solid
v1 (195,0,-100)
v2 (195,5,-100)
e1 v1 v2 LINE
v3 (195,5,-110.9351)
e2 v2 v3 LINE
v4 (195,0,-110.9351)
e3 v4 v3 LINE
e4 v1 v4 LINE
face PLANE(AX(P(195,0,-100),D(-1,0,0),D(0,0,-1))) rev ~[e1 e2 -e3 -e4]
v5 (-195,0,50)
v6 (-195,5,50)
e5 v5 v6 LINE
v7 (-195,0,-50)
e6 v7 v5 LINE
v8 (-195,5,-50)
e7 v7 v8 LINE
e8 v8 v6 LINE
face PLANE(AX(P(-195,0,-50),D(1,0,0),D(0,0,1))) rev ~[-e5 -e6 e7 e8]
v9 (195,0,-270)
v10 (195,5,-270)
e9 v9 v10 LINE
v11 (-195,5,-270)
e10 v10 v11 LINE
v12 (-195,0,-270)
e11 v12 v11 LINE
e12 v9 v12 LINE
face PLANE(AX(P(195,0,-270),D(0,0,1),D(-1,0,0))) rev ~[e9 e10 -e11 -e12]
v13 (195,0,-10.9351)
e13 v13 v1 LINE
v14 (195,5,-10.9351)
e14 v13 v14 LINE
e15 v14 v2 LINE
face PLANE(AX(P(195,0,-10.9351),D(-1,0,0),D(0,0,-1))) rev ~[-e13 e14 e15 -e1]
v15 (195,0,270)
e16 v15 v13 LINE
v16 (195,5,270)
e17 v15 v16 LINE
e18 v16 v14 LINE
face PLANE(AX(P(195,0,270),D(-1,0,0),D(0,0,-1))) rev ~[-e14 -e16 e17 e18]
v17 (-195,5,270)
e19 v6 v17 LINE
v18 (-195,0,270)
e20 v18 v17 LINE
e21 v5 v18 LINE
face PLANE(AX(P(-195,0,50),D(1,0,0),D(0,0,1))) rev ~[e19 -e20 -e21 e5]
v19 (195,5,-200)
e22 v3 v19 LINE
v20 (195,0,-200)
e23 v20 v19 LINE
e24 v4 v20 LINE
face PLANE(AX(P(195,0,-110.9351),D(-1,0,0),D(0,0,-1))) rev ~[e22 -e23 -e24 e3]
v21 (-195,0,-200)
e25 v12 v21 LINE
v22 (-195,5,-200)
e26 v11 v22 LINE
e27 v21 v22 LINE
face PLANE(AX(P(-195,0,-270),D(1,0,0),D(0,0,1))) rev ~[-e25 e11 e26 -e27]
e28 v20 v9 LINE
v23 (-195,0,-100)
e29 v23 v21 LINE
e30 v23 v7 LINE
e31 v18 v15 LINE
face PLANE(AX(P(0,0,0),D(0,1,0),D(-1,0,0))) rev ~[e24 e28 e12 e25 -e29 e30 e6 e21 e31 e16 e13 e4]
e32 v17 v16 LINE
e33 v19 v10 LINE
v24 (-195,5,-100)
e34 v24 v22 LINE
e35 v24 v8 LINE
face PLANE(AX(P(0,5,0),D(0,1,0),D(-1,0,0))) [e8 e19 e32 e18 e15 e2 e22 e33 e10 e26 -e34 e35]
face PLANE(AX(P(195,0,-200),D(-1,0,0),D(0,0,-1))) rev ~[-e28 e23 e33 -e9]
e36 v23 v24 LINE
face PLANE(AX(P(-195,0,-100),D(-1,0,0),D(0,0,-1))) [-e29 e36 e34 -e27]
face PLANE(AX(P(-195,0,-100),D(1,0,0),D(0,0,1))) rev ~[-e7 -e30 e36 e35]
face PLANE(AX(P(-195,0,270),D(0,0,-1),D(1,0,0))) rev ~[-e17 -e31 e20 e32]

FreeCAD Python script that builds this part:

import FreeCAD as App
import Part
import Sketcher


def add_polygon(sketch, points):
    """Adds a closed chain of lines whose ends are joined by coincident constraints."""
    first, n = sketch.GeometryCount, len(points)
    for a, b in zip(points, points[1:] + points[:1]):
        sketch.addGeometry(Part.LineSegment(App.Vector(*a, 0), App.Vector(*b, 0)), False)
    for i in range(n):
        sketch.addConstraint(Sketcher.Constraint("Coincident", first + i, 2, first + (i + 1) % n, 1))

doc = App.newDocument("Part")
params = doc.addObject("Spreadsheet::Sheet", "Params")
for row, (alias, value) in enumerate([
    ("sketch1_width", "390 mm"),
    ("sketch1_height", "540 mm"),
    ("pad1_length", "5 mm"),
], start=1):
    params.set(f"A{row}", alias)
    params.set(f"B{row}", "=" + value)
    params.setAlias(f"B{row}", alias)

body = doc.addObject("PartDesign::Body", "Body")

# Sketch on XZ plane
sketch1 = doc.addObject("Sketcher::SketchObject", "Sketch")
body.addObject(sketch1)
sketch1.AttachmentSupport = (doc.XZ_Plane, [""])
sketch1.MapMode = "FlatFace"
add_polygon(sketch1, [(-195, -270), (-195, 270), (195, 270), (195, -270)])  # lines 0-3
sketch1.addConstraint([
    Sketcher.Constraint("Vertical", 0),
    Sketcher.Constraint("Horizontal", 1),
    Sketcher.Constraint("Vertical", 2),
    Sketcher.Constraint("Horizontal", 3),
    Sketcher.Constraint("Symmetric", 0, 2, 2, 2, -1, 1),
    Sketcher.Constraint("DistanceX", 1, 1, 1, 2, 390.0),
    Sketcher.Constraint("DistanceY", 0, 1, 0, 2, 540.0),
])
sketch1.setExpression("Constraints[9]", "Params.sketch1_width")
sketch1.setExpression("Constraints[10]", "Params.sketch1_height")
pad1 = doc.addObject("PartDesign::Pad", "Pad")
body.addObject(pad1)
pad1.Profile = sketch1
pad1.setExpression("Length", "Params.pad1_length")
pad1.Reversed = True

doc.recompute()
